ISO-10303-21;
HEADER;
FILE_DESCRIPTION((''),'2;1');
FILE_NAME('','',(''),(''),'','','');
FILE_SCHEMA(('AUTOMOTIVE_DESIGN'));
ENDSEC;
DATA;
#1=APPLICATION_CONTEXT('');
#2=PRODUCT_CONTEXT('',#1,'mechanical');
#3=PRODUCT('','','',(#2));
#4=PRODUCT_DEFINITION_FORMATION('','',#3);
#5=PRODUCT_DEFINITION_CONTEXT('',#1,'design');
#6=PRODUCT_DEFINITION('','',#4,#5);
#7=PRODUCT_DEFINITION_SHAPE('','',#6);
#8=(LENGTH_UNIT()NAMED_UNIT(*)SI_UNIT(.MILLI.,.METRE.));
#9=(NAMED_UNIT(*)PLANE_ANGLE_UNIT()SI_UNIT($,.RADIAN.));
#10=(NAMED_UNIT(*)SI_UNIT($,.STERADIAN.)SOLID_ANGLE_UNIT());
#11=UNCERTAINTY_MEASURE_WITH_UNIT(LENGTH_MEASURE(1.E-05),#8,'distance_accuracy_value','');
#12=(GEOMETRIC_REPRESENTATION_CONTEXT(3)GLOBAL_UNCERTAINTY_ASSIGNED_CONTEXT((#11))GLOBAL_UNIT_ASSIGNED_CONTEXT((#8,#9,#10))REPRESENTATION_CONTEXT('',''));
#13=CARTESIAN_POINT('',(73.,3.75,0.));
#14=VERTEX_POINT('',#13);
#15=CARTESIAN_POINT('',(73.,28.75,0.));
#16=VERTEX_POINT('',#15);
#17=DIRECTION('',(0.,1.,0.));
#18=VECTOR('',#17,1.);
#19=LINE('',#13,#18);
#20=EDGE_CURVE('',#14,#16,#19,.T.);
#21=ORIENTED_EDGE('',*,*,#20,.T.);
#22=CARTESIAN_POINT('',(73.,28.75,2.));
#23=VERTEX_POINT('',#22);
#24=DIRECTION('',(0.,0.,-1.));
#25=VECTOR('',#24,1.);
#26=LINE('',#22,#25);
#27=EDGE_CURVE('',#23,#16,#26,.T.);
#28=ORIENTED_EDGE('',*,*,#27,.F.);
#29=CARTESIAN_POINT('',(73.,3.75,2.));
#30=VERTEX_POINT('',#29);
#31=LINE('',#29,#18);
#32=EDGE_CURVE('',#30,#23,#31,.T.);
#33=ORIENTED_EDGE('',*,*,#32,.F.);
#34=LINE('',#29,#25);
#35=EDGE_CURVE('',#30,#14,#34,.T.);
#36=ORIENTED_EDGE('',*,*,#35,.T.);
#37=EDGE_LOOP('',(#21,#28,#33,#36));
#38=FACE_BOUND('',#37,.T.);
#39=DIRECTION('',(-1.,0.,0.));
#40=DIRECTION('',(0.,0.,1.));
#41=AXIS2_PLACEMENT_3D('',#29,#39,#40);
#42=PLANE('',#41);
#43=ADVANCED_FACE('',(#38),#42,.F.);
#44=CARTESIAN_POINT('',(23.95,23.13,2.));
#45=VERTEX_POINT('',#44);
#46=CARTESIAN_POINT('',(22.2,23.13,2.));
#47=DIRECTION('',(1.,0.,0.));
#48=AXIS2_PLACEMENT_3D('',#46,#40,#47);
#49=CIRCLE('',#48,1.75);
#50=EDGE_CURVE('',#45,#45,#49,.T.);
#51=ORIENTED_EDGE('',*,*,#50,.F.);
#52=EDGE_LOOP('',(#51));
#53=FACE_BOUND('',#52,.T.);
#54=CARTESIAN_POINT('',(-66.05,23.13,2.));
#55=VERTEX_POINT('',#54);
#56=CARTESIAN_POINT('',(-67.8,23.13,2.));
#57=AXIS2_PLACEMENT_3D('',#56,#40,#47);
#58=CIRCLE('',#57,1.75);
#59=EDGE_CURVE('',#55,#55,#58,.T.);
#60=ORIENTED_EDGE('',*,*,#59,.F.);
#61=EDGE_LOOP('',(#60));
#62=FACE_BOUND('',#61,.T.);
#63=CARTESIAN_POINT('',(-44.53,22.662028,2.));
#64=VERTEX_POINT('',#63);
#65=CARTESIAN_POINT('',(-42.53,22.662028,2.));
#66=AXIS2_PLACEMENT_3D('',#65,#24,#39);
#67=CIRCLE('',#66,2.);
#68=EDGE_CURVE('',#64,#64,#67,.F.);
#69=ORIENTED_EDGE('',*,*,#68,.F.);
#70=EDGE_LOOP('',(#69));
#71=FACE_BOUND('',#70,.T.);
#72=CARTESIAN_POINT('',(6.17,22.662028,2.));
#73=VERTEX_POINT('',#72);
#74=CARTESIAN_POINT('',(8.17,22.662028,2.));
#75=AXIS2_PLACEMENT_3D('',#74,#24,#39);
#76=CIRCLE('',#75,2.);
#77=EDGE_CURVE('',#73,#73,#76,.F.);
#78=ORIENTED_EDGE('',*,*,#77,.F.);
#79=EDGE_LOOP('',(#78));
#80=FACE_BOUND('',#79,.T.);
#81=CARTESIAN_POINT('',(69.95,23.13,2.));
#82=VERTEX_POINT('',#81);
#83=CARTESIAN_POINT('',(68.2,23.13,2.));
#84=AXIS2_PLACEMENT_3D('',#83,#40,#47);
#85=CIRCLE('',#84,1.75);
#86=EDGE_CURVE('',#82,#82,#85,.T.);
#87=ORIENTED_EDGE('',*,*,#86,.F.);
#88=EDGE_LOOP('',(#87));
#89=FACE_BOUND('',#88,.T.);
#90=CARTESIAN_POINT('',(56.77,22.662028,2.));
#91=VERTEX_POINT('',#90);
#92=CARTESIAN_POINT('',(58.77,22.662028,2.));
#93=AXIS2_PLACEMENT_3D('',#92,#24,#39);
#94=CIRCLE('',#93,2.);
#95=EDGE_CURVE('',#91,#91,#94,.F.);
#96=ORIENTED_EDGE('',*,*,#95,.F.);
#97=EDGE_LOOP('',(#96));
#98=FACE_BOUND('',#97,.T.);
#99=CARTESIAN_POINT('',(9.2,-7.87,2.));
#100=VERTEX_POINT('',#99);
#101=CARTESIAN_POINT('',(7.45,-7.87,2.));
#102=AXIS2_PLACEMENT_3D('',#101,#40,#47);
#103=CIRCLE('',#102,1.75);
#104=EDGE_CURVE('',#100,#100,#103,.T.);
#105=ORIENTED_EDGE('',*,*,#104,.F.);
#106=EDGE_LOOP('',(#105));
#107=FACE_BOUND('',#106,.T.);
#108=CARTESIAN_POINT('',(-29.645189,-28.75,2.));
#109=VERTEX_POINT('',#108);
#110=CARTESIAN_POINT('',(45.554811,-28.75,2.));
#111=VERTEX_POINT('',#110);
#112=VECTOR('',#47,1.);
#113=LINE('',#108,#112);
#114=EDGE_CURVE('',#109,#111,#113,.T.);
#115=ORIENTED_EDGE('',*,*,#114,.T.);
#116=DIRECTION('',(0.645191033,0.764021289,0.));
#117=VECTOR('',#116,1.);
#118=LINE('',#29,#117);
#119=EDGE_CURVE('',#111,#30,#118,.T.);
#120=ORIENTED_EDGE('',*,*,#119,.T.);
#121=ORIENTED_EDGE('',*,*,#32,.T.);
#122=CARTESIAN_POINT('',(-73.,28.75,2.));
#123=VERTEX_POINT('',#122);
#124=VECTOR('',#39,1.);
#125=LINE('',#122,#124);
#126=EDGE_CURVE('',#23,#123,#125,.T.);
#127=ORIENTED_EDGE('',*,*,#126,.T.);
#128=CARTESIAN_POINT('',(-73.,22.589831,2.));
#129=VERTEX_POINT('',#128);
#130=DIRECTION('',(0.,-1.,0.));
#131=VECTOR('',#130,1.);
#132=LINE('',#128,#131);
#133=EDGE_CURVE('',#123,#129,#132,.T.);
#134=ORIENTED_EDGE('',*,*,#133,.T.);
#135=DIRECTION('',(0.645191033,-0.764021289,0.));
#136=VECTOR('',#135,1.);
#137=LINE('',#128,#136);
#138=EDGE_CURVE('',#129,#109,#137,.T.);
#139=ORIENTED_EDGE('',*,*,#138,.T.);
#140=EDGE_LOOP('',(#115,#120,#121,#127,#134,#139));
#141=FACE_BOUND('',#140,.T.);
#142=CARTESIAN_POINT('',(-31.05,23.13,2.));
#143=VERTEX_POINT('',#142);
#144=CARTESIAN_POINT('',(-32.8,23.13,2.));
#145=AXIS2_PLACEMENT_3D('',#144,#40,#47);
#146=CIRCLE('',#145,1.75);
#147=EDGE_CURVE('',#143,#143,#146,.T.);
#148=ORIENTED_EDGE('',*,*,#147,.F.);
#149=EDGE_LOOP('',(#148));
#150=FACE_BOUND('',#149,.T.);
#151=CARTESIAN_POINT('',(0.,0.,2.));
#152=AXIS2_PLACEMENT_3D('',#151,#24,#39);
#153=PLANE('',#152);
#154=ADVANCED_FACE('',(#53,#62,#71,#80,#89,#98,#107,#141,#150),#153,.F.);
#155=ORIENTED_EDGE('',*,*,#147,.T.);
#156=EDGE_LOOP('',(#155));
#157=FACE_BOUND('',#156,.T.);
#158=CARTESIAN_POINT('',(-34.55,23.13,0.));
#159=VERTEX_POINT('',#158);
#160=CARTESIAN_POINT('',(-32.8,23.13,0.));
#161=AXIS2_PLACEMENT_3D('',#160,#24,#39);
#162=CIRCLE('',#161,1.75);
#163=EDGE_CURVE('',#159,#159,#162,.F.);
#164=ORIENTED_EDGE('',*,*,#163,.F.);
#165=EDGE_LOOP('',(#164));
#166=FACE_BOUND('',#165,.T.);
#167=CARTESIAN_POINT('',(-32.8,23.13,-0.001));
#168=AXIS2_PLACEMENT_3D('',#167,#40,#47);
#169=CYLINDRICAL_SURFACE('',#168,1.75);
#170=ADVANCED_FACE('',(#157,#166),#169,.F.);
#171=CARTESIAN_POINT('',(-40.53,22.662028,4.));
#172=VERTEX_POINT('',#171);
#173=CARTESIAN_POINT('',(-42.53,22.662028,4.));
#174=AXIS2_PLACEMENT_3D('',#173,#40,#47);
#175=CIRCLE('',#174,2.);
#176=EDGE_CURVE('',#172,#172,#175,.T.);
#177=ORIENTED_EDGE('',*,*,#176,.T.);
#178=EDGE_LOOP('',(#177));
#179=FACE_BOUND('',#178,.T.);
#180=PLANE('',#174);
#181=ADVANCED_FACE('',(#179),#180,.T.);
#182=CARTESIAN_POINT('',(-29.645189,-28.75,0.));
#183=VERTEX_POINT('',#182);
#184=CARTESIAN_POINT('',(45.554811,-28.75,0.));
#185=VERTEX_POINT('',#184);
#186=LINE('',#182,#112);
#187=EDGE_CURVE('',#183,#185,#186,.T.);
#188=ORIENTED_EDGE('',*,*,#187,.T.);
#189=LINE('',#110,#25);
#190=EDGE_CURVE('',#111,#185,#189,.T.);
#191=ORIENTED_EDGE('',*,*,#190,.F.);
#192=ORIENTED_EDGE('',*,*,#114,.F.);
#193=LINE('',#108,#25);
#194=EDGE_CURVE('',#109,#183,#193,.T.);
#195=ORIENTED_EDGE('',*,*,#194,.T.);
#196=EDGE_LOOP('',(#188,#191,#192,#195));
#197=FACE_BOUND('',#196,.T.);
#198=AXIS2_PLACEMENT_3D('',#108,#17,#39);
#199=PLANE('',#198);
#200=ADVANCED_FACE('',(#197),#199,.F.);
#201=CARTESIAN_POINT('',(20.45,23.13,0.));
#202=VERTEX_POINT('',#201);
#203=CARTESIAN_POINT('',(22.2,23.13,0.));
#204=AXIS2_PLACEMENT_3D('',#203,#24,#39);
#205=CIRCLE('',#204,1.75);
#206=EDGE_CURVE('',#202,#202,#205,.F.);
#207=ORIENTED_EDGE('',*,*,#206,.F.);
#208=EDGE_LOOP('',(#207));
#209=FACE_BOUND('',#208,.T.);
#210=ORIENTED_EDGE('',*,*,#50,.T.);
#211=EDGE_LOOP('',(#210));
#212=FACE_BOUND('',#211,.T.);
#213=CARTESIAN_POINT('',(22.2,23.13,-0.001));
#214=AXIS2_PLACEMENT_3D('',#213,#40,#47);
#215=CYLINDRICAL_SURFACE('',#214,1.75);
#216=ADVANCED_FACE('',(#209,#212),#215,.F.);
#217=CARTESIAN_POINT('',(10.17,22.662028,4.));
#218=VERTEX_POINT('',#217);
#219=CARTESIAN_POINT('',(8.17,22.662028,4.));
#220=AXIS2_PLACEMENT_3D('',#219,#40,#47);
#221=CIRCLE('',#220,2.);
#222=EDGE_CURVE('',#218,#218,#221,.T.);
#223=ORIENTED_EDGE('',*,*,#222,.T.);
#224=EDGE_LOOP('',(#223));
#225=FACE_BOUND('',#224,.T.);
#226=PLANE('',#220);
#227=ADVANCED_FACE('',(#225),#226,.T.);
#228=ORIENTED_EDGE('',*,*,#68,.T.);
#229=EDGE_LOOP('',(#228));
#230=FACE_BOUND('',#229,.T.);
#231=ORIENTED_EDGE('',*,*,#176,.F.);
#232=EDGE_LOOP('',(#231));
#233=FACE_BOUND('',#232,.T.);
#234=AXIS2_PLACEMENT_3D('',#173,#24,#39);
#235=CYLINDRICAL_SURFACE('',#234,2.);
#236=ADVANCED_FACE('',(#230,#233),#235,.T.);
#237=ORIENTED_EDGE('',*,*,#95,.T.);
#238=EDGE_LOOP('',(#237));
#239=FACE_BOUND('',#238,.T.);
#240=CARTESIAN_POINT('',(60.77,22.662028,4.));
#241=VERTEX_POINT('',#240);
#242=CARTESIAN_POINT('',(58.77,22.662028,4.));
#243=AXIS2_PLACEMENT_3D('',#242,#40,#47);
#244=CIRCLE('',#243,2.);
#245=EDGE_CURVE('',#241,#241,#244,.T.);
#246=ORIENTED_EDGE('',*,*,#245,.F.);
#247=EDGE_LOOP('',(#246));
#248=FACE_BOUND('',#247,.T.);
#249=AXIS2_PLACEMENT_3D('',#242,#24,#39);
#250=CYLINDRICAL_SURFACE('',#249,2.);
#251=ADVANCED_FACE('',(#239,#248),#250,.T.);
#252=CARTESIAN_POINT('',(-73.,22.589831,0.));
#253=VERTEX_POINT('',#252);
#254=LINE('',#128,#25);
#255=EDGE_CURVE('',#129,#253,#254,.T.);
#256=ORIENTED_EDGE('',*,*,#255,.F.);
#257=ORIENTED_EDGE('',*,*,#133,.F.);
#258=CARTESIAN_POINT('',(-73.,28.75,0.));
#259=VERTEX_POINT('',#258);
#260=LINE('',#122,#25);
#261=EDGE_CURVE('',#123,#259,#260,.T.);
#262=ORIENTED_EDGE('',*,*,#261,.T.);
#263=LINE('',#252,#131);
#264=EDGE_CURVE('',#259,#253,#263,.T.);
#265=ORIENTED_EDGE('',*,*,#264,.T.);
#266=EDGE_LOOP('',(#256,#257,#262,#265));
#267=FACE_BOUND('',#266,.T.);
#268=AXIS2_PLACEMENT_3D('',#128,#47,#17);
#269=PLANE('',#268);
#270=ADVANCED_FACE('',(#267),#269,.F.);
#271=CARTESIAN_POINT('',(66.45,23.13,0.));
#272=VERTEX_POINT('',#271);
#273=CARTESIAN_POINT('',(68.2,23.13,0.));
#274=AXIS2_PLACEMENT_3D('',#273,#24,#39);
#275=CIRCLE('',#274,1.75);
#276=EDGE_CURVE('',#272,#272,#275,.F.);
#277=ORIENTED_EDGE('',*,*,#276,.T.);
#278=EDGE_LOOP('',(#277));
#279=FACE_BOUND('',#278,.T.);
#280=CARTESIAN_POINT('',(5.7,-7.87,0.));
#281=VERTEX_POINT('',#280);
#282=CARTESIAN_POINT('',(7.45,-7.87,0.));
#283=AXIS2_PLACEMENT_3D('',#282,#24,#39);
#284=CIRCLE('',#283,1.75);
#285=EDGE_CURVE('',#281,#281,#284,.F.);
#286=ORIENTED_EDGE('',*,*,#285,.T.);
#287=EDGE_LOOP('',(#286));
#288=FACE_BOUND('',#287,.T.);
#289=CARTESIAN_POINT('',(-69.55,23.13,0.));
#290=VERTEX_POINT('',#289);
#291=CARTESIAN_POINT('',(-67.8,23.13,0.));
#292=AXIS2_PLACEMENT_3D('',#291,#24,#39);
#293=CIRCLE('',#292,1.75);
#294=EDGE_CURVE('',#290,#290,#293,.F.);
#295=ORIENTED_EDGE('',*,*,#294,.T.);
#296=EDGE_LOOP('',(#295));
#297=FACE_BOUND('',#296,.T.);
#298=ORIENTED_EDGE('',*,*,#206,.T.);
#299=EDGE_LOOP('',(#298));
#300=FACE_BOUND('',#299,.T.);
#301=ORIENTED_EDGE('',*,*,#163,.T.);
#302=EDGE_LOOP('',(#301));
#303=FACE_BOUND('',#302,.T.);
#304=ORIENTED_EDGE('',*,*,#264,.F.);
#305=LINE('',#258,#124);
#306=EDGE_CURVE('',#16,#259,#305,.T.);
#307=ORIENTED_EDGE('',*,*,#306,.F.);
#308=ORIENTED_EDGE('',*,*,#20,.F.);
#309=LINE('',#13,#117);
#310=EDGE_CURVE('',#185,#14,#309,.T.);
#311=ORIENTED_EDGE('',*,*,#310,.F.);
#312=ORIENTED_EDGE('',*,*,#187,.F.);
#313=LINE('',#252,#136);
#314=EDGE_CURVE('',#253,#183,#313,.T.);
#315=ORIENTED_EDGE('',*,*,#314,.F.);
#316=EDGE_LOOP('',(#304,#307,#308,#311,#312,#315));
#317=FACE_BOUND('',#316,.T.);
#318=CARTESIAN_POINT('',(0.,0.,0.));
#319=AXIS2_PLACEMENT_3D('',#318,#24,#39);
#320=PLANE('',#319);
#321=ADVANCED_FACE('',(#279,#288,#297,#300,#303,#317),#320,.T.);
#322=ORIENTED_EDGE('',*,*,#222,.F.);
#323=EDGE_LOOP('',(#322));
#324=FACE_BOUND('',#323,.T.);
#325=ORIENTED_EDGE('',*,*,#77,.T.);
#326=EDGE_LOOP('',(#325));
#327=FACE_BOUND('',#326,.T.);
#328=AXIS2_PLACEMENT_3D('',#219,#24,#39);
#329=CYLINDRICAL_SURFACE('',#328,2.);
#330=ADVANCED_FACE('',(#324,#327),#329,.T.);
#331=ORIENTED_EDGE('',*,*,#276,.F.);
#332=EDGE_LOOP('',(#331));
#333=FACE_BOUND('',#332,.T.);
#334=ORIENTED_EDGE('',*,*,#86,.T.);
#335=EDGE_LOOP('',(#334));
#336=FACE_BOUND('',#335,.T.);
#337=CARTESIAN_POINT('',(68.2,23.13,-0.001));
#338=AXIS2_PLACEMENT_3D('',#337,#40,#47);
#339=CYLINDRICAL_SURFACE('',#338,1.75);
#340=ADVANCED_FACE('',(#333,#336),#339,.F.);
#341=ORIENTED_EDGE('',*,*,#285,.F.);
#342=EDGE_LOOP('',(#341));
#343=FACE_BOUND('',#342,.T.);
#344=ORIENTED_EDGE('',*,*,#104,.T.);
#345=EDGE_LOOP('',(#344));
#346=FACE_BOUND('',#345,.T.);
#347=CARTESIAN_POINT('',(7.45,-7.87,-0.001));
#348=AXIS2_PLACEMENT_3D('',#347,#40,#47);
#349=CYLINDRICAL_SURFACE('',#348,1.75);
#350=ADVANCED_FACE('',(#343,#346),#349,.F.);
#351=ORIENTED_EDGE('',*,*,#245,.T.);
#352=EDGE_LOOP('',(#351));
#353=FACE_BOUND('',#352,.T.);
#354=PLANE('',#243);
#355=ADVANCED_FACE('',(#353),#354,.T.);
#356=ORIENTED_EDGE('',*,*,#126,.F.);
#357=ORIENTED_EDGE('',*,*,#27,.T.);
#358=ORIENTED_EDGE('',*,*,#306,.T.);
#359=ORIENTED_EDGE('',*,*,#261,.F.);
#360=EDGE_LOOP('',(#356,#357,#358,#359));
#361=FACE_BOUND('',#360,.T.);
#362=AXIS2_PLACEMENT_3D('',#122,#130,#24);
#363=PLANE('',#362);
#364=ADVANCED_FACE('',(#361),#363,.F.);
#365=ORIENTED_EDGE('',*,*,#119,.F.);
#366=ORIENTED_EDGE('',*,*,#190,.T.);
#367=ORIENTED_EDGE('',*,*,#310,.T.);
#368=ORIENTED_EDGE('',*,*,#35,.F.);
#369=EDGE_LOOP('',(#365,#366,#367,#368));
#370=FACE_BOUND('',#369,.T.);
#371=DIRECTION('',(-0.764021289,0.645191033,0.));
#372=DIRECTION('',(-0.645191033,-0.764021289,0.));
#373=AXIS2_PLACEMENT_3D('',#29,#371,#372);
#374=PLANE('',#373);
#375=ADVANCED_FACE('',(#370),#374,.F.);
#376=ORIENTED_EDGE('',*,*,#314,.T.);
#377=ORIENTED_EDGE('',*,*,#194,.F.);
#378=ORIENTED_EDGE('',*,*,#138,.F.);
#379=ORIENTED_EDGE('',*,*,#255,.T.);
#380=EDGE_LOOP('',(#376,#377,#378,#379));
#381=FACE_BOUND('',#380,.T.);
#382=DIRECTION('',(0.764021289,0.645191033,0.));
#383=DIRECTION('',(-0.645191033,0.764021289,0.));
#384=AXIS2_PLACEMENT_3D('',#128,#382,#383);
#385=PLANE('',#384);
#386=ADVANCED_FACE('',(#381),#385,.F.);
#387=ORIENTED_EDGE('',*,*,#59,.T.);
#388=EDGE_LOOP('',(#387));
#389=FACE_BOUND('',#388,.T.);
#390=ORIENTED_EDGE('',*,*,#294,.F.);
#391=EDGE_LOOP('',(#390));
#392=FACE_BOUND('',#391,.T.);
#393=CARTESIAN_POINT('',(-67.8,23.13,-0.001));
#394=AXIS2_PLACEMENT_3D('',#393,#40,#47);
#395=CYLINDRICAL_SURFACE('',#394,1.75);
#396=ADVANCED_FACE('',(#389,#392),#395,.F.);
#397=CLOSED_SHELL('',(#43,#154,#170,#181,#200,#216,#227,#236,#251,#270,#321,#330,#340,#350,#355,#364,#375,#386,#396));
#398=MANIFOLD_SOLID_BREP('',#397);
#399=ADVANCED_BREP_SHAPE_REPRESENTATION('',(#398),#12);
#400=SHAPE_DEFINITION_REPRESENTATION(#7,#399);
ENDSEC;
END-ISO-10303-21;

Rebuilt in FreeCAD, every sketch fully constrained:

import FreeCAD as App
import Part
import Sketcher
from FreeCAD import Vector
Q = App.Units.Quantity


def add_polygon(sketch, points):
    """Adds a closed chain of lines whose ends are joined by coincident constraints."""
    first, n = sketch.GeometryCount, len(points)
    for a, b in zip(points, points[1:] + points[:1]):
        sketch.addGeometry(Part.LineSegment(App.Vector(*a, 0), App.Vector(*b, 0)), False)
    for i in range(n):
        sketch.addConstraint(Sketcher.Constraint("Coincident", first + i, 2, first + (i + 1) % n, 1))

doc = App.newDocument("Part")
params = doc.addObject("Spreadsheet::Sheet", "Params")
for row, (alias, value) in enumerate([
    ("sketch1_width", "146 mm"),
    ("sketch1_height", "25 mm"),
    ("sketch1_width2", "75.2 mm"),
    ("pad1_length", "2 mm"),
    ("sketch2_diameter", "3.5 mm"),
    ("sketch3_diameter", "3.5 mm"),
    ("sketch4_diameter", "3.5 mm"),
    ("sketch5_diameter", "3.5 mm"),
    ("sketch6_diameter", "3.5 mm"),
    ("sketch7_diameter", "4 mm"),
    ("pad2_length", "2 mm"),
], start=1):
    params.set(f"A{row}", alias)
    params.set(f"B{row}", "=" + value)
    params.setAlias(f"B{row}", alias)

body = doc.addObject("PartDesign::Body", "Body")

# Sketch on XY plane
sketch1 = body.newObject("Sketcher::SketchObject", "Sketch")
sketch1.AttachmentSupport = (doc.getObject("XY_Plane"), [""])
sketch1.MapMode = "FlatFace"
add_polygon(sketch1, [(-73, 22.589831), (-29.645189, -28.75), (45.554811, -28.75), (73, 3.75), (73, 28.75), (-73, 28.75)])  # lines 0-5
sketch1.addConstraint([
    Sketcher.Constraint("Horizontal", 1),
    Sketcher.Constraint("Vertical", 3),
    Sketcher.Constraint("Horizontal", 4),
    Sketcher.Constraint("Vertical", 5),
    Sketcher.Constraint("DistanceX", 4, 2, 4, 1, Q("146 mm")),
    Sketcher.Constraint("DistanceY", 3, 1, 3, 2, Q("25 mm")),
    Sketcher.Constraint("DistanceX", 1, 1, 1, 2, Q("75.2 mm")),
    Sketcher.Constraint("DistanceX", -1, 1, 2, 2, Q("73 mm")),
    Sketcher.Constraint("Angle", 0, Q("-49.82 deg")),
    Sketcher.Constraint("Angle", 2, Q("49.82 deg")),
    Sketcher.Constraint("DistanceY", 1, 2, 2, 2, Q("32.5 mm")),
    Sketcher.Constraint("DistanceY", 0, 2, -1, 1, Q("28.75 mm")),
])
sketch1.setExpression("Constraints[10]", "Params.sketch1_width")
sketch1.setExpression("Constraints[11]", "Params.sketch1_height")
sketch1.setExpression("Constraints[12]", "Params.sketch1_width2")
pad1 = body.newObject("PartDesign::Pad", "Pad")
pad1.Profile = sketch1
pad1.setExpression("Length", "Params.pad1_length")

# Sketch on XY plane
sketch2 = body.newObject("Sketcher::SketchObject", "Sketch001")
sketch2.AttachmentSupport = (doc.getObject("XY_Plane"), [""])
sketch2.MapMode = "FlatFace"
sketch2.AttachmentOffset = App.Placement(Vector(0, 0, 2), App.Rotation())
sketch2.addGeometry(Part.Circle(Vector(22.2, 23.13, 0), Vector(0, 0, 1), 1.75), False)
sketch2.addConstraint([
    Sketcher.Constraint("Diameter", 0, Q("3.5 mm")),
    Sketcher.Constraint("DistanceX", -1, 1, 0, 3, Q("22.2 mm")),
    Sketcher.Constraint("DistanceY", -1, 1, 0, 3, Q("23.13 mm")),
])
sketch2.setExpression("Constraints[0]", "Params.sketch2_diameter")
pocket1 = body.newObject("PartDesign::Pocket", "Pocket")
pocket1.Profile = sketch2
pocket1.Type = "UpToFirst"

# Sketch on XY plane
sketch3 = body.newObject("Sketcher::SketchObject", "Sketch002")
sketch3.AttachmentSupport = (doc.getObject("XY_Plane"), [""])
sketch3.MapMode = "FlatFace"
sketch3.AttachmentOffset = App.Placement(Vector(0, 0, 2), App.Rotation())
sketch3.addGeometry(Part.Circle(Vector(68.2, 23.13, 0), Vector(0, 0, 1), 1.75), False)
sketch3.addConstraint([
    Sketcher.Constraint("Diameter", 0, Q("3.5 mm")),
    Sketcher.Constraint("DistanceX", -1, 1, 0, 3, Q("68.2 mm")),
    Sketcher.Constraint("DistanceY", -1, 1, 0, 3, Q("23.13 mm")),
])
sketch3.setExpression("Constraints[0]", "Params.sketch3_diameter")
pocket2 = body.newObject("PartDesign::Pocket", "Pocket001")
pocket2.Profile = sketch3
pocket2.Type = "UpToFirst"

# Sketch on XY plane
sketch4 = body.newObject("Sketcher::SketchObject", "Sketch003")
sketch4.AttachmentSupport = (doc.getObject("XY_Plane"), [""])
sketch4.MapMode = "FlatFace"
sketch4.AttachmentOffset = App.Placement(Vector(0, 0, 2), App.Rotation())
sketch4.addGeometry(Part.Circle(Vector(-32.8, 23.13, 0), Vector(0, 0, 1), 1.75), False)
sketch4.addConstraint([
    Sketcher.Constraint("Diameter", 0, Q("3.5 mm")),
    Sketcher.Constraint("DistanceX", 0, 3, -1, 1, Q("32.8 mm")),
    Sketcher.Constraint("DistanceY", -1, 1, 0, 3, Q("23.13 mm")),
])
sketch4.setExpression("Constraints[0]", "Params.sketch4_diameter")
pocket3 = body.newObject("PartDesign::Pocket", "Pocket002")
pocket3.Profile = sketch4
pocket3.Type = "UpToFirst"

# Sketch on XY plane
sketch5 = body.newObject("Sketcher::SketchObject", "Sketch004")
sketch5.AttachmentSupport = (doc.getObject("XY_Plane"), [""])
sketch5.MapMode = "FlatFace"
sketch5.AttachmentOffset = App.Placement(Vector(0, 0, 2), App.Rotation())
sketch5.addGeometry(Part.Circle(Vector(-67.8, 23.13, 0), Vector(0, 0, 1), 1.75), False)
sketch5.addConstraint([
    Sketcher.Constraint("Diameter", 0, Q("3.5 mm")),
    Sketcher.Constraint("DistanceX", 0, 3, -1, 1, Q("67.8 mm")),
    Sketcher.Constraint("DistanceY", -1, 1, 0, 3, Q("23.13 mm")),
])
sketch5.setExpression("Constraints[0]", "Params.sketch5_diameter")
pocket4 = body.newObject("PartDesign::Pocket", "Pocket003")
pocket4.Profile = sketch5
pocket4.Type = "UpToFirst"

# Sketch on XY plane
sketch6 = body.newObject("Sketcher::SketchObject", "Sketch005")
sketch6.AttachmentSupport = (doc.getObject("XY_Plane"), [""])
sketch6.MapMode = "FlatFace"
sketch6.AttachmentOffset = App.Placement(Vector(0, 0, 2), App.Rotation())
sketch6.addGeometry(Part.Circle(Vector(7.45, -7.87, 0), Vector(0, 0, 1), 1.75), False)
sketch6.addConstraint([
    Sketcher.Constraint("Diameter", 0, Q("3.5 mm")),
    Sketcher.Constraint("DistanceX", -1, 1, 0, 3, Q("7.45 mm")),
    Sketcher.Constraint("DistanceY", 0, 3, -1, 1, Q("7.87 mm")),
])
sketch6.setExpression("Constraints[0]", "Params.sketch6_diameter")
pocket5 = body.newObject("PartDesign::Pocket", "Pocket004")
pocket5.Profile = sketch6
pocket5.Type = "UpToFirst"

# Sketch on XY plane
sketch7 = body.newObject("Sketcher::SketchObject", "Sketch006")
sketch7.AttachmentSupport = (doc.getObject("XY_Plane"), [""])
sketch7.MapMode = "FlatFace"
sketch7.AttachmentOffset = App.Placement(Vector(0, 0, 2), App.Rotation())
sketch7.addGeometry([
    Part.Circle(Vector(8.17, 22.662028, 0), Vector(0, 0, 1), 2),
    Part.Circle(Vector(58.77, 22.662028, 0), Vector(0, 0, 1), 2),
    Part.Circle(Vector(-42.53, 22.662028, 0), Vector(0, 0, 1), 2),
], False)
sketch7.addConstraint([
    Sketcher.Constraint("Equal", 0, 1),
    Sketcher.Constraint("Equal", 1, 2),
    Sketcher.Constraint("Horizontal", 0, 3, 1, 3),
    Sketcher.Constraint("Horizontal", 1, 3, 2, 3),
    Sketcher.Constraint("Diameter", 0, Q("4 mm")),
    Sketcher.Constraint("DistanceX", 0, 3, 1, 3, Q("50.6 mm")),
    Sketcher.Constraint("DistanceX", 2, 3, 0, 3, Q("50.7 mm")),
    Sketcher.Constraint("DistanceX", -1, 1, 0, 3, Q("8.17 mm")),
    Sketcher.Constraint("DistanceY", -1, 1, 0, 3, Q("22.662028 mm")),
])
sketch7.setExpression("Constraints[4]", "Params.sketch7_diameter")
pad2 = body.newObject("PartDesign::Pad", "Pad001")
pad2.Profile = sketch7
pad2.setExpression("Length", "Params.pad2_length")

doc.recompute()
